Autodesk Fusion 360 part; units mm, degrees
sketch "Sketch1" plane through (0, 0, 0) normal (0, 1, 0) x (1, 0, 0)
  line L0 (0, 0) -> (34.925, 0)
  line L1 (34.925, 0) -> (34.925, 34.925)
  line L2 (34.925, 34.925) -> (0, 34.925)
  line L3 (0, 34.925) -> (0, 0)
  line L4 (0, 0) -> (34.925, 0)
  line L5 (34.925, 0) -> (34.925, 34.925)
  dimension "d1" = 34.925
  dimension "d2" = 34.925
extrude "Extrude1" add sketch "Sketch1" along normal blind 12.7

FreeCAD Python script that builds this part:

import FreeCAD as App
import Part
import Sketcher

V = App.Vector
Q = App.Units.Quantity

doc = App.newDocument("Part")
body = doc.addObject("PartDesign::Body", "Body")

sketch1 = body.newObject("Sketcher::SketchObject", "Sketch")
sketch1.AttachmentSupport = (doc.getObject("XZ_Plane"), [""])
sketch1.MapMode = "FlatFace"
sketch1.addGeometry([
    Part.LineSegment(V(0, -35, 0), V(0, 0, 0)),
    Part.LineSegment(V(0, 0, 0), V(35, 0, 0)),
    Part.LineSegment(V(35, 0, 0), V(35, -35, 0)),
    Part.LineSegment(V(35, -35, 0), V(0, -35, 0)),
], False)
sketch1.addConstraint([
    Sketcher.Constraint("Coincident", 0, 2, 1, 1),
    Sketcher.Constraint("Coincident", 1, 2, 2, 1),
    Sketcher.Constraint("Coincident", 2, 2, 3, 1),
    Sketcher.Constraint("Coincident", 3, 2, 0, 1),
    Sketcher.Constraint("Vertical", 0),
    Sketcher.Constraint("Horizontal", 1),
    Sketcher.Constraint("Vertical", 2),
    Sketcher.Constraint("Horizontal", 3),
    Sketcher.Constraint("Coincident", 0, 2, -1, 1),
    Sketcher.Constraint("Equal", 3, 0),
    Sketcher.Constraint("DistanceX", 1, 1, 1, 2, Q("1.375 in")),
])
pad1 = body.newObject("PartDesign::Pad", "Pad")
pad1.Profile = sketch1
pad1.Length = Q("0.5 in")
pad1.Reversed = True

doc.recompute()
